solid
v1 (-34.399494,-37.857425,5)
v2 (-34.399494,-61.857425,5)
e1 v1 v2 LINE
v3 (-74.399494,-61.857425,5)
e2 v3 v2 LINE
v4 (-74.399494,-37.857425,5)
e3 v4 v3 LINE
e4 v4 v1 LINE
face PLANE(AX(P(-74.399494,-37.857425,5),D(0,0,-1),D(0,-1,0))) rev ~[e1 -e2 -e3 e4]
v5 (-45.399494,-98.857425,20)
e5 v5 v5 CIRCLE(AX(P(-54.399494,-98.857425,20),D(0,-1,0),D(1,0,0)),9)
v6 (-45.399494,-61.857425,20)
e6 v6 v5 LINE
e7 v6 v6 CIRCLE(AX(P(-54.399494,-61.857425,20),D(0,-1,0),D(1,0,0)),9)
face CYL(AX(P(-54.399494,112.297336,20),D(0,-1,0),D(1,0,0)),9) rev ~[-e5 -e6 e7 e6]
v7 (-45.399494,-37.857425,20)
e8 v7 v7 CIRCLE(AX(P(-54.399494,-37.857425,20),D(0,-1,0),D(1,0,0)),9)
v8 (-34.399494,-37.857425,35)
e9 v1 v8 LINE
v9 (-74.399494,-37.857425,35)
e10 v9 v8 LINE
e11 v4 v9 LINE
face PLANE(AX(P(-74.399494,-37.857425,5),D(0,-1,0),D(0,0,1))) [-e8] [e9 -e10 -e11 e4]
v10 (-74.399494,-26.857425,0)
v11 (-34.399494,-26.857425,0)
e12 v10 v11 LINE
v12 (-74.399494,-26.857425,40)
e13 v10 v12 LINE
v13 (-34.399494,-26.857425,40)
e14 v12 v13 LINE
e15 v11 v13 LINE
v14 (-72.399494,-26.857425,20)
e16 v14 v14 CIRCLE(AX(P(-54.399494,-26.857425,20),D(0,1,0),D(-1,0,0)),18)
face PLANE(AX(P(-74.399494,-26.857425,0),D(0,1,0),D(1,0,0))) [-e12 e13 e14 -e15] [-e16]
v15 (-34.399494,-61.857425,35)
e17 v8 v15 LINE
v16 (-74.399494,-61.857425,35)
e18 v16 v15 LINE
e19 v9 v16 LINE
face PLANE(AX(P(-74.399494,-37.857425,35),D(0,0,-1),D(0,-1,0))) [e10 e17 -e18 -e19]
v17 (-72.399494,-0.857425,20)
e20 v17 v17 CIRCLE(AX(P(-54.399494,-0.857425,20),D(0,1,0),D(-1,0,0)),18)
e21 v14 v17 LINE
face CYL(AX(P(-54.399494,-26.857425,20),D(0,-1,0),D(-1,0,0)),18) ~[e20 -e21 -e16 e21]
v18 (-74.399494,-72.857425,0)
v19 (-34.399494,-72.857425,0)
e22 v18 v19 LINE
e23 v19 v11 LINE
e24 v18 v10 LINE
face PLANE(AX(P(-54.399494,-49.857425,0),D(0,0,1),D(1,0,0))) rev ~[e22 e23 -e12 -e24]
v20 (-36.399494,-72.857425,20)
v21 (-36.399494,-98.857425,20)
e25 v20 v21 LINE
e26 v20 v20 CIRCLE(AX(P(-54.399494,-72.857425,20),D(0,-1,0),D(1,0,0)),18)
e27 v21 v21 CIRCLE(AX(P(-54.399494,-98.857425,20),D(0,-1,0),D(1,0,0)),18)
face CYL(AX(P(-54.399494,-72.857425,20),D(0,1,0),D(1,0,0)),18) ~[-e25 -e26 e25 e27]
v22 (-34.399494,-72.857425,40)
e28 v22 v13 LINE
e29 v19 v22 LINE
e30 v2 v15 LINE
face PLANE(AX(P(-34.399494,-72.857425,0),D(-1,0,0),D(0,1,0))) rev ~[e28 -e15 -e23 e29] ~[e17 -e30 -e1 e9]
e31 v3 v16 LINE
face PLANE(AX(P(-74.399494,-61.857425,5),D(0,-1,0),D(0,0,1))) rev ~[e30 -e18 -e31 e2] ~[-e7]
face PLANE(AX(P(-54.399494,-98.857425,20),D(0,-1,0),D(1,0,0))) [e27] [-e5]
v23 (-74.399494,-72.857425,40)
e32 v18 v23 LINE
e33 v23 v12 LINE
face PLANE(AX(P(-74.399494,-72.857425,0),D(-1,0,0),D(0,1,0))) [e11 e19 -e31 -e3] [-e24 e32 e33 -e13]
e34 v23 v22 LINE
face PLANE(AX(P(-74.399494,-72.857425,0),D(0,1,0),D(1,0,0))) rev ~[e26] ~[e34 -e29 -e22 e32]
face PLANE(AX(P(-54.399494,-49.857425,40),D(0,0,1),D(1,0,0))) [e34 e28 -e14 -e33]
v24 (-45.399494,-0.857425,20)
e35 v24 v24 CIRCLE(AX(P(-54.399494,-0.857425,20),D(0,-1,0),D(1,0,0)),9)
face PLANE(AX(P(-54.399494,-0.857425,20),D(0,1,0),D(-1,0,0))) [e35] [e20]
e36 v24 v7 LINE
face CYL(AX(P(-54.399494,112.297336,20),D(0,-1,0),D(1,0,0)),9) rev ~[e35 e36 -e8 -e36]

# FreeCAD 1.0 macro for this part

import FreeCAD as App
import Part
import Sketcher

V = App.Vector

doc = App.newDocument("Part")
body = doc.addObject("PartDesign::Body", "Body")

# Sketch on XY plane
sketch1 = body.newObject("Sketcher::SketchObject", "Sketch")
sketch1.AttachmentSupport = (doc.getObject("XY_Plane"), [""])
sketch1.MapMode = "FlatFace"
sketch1.addGeometry(Part.LineSegment(V(-74.399494, -26.857425, 0), V(-74.399494, -72.857425, 0)), False)
sketch1.addGeometry(Part.LineSegment(V(-74.399494, -72.857425, 0), V(-34.399494, -72.857425, 0)), False)
sketch1.addGeometry(Part.LineSegment(V(-34.399494, -72.857425, 0), V(-34.399494, -26.857425, 0)), False)
sketch1.addGeometry(Part.LineSegment(V(-34.399494, -26.857425, 0), V(-74.399494, -26.857425, 0)), False)
sketch1.addConstraint(Sketcher.Constraint("Coincident", 0, 2, 1, 1))
sketch1.addConstraint(Sketcher.Constraint("Coincident", 1, 2, 2, 1))
sketch1.addConstraint(Sketcher.Constraint("Coincident", 2, 2, 3, 1))
sketch1.addConstraint(Sketcher.Constraint("Coincident", 3, 2, 0, 1))
sketch1.addConstraint(Sketcher.Constraint("Vertical", 0))
sketch1.addConstraint(Sketcher.Constraint("Horizontal", 1))
sketch1.addConstraint(Sketcher.Constraint("Vertical", 2))
sketch1.addConstraint(Sketcher.Constraint("Horizontal", 3))
sketch1.addConstraint(Sketcher.Constraint("DistanceX", 1, 1, 1, 2, 40.0))
sketch1.addConstraint(Sketcher.Constraint("DistanceY", 0, 2, 0, 1, 46.0))
sketch1.addConstraint(Sketcher.Constraint("DistanceX", 0, 2, -1, 1, 74.399494))
sketch1.addConstraint(Sketcher.Constraint("DistanceY", 0, 2, -1, 1, 72.857425))
pad1 = body.newObject("PartDesign::Pad", "Pad")
pad1.Profile = sketch1
pad1.Length = 40

# Sketch on XZ plane
sketch2 = body.newObject("Sketcher::SketchObject", "Sketch001")
sketch2.AttachmentSupport = (doc.getObject("XZ_Plane"), [""])
sketch2.MapMode = "FlatFace"
sketch2.AttachmentOffset = App.Placement(V(0, 0, 72.857425), App.Rotation())
sketch2.addGeometry(Part.Circle(V(-54.399494, 20, 0), V(0, 0, 1), 18), False)
sketch2.addConstraint(Sketcher.Constraint("Diameter", 0, 36.0))
sketch2.addConstraint(Sketcher.Constraint("DistanceY", -1, 1, 0, 3, 20.0))
sketch2.addConstraint(Sketcher.Constraint("DistanceX", 0, 3, -1, 1, 54.399494))
pad2 = body.newObject("PartDesign::Pad", "Pad001")
pad2.Profile = sketch2
pad2.Length = 26

# Sketch on XZ plane
sketch3 = body.newObject("Sketcher::SketchObject", "Sketch002")
sketch3.AttachmentSupport = (doc.getObject("XZ_Plane"), [""])
sketch3.MapMode = "FlatFace"
sketch3.AttachmentOffset = App.Placement(V(0, 0, 26.857425), App.Rotation())
sketch3.addGeometry(Part.Circle(V(-54.399494, 20, 0), V(0, 0, 1), 18), False)
sketch3.addConstraint(Sketcher.Constraint("Diameter", 0, 36.0))
sketch3.addConstraint(Sketcher.Constraint("DistanceY", -1, 1, 0, 3, 20.0))
sketch3.addConstraint(Sketcher.Constraint("DistanceX", 0, 3, -1, 1, 54.399494))
pad3 = body.newObject("PartDesign::Pad", "Pad002")
pad3.Profile = sketch3
pad3.Length = 26
pad3.Reversed = True

# Sketch on XZ plane
sketch4 = body.newObject("Sketcher::SketchObject", "Sketch003")
sketch4.AttachmentSupport = (doc.getObject("XZ_Plane"), [""])
sketch4.MapMode = "FlatFace"
sketch4.AttachmentOffset = App.Placement(V(0, 0, 0.857425), App.Rotation())
sketch4.addGeometry(Part.Circle(V(-54.399494, 20, 0), V(0, 0, 1), 9), False)
sketch4.addConstraint(Sketcher.Constraint("Diameter", 0, 18.0))
sketch4.addConstraint(Sketcher.Constraint("DistanceY", -1, 1, 0, 3, 20.0))
sketch4.addConstraint(Sketcher.Constraint("DistanceX", 0, 3, -1, 1, 54.399494))
doc.recompute()
hole = body.newObject("PartDesign::Hole", "Hole")
hole.Profile = sketch4
hole.ThreadType = "None"
hole.Diameter = 18
hole.DepthType = "ThroughAll"
hole.Reversed = True

# Sketch on YZ plane
sketch5 = body.newObject("Sketcher::SketchObject", "Sketch004")
sketch5.AttachmentSupport = (doc.getObject("YZ_Plane"), [""])
sketch5.MapMode = "FlatFace"
sketch5.AttachmentOffset = App.Placement(V(0, 0, -74.399494), App.Rotation())
sketch5.addGeometry(Part.LineSegment(V(-37.857425, 35, 0), V(-37.857425, 5, 0)), False)
sketch5.addGeometry(Part.LineSegment(V(-37.857425, 5, 0), V(-61.857425, 5, 0)), False)
sketch5.addGeometry(Part.LineSegment(V(-61.857425, 5, 0), V(-61.857425, 35, 0)), False)
sketch5.addGeometry(Part.LineSegment(V(-61.857425, 35, 0), V(-37.857425, 35, 0)), False)
sketch5.addConstraint(Sketcher.Constraint("Coincident", 0, 2, 1, 1))
sketch5.addConstraint(Sketcher.Constraint("Coincident", 1, 2, 2, 1))
sketch5.addConstraint(Sketcher.Constraint("Coincident", 2, 2, 3, 1))
sketch5.addConstraint(Sketcher.Constraint("Coincident", 3, 2, 0, 1))
sketch5.addConstraint(Sketcher.Constraint("Vertical", 0))
sketch5.addConstraint(Sketcher.Constraint("Horizontal", 1))
sketch5.addConstraint(Sketcher.Constraint("Vertical", 2))
sketch5.addConstraint(Sketcher.Constraint("Horizontal", 3))
sketch5.addConstraint(Sketcher.Constraint("DistanceX", 1, 2, 1, 1, 24.0))
sketch5.addConstraint(Sketcher.Constraint("DistanceY", 0, 2, 0, 1, 30.0))
sketch5.addConstraint(Sketcher.Constraint("DistanceY", -1, 1, 0, 2, 5.0))
sketch5.addConstraint(Sketcher.Constraint("DistanceX", 0, 2, -1, 1, 37.857425))
pocket1 = body.newObject("PartDesign::Pocket", "Pocket")
pocket1.Profile = sketch5
pocket1.Length = 50
pocket1.Reversed = True

doc.recompute()
